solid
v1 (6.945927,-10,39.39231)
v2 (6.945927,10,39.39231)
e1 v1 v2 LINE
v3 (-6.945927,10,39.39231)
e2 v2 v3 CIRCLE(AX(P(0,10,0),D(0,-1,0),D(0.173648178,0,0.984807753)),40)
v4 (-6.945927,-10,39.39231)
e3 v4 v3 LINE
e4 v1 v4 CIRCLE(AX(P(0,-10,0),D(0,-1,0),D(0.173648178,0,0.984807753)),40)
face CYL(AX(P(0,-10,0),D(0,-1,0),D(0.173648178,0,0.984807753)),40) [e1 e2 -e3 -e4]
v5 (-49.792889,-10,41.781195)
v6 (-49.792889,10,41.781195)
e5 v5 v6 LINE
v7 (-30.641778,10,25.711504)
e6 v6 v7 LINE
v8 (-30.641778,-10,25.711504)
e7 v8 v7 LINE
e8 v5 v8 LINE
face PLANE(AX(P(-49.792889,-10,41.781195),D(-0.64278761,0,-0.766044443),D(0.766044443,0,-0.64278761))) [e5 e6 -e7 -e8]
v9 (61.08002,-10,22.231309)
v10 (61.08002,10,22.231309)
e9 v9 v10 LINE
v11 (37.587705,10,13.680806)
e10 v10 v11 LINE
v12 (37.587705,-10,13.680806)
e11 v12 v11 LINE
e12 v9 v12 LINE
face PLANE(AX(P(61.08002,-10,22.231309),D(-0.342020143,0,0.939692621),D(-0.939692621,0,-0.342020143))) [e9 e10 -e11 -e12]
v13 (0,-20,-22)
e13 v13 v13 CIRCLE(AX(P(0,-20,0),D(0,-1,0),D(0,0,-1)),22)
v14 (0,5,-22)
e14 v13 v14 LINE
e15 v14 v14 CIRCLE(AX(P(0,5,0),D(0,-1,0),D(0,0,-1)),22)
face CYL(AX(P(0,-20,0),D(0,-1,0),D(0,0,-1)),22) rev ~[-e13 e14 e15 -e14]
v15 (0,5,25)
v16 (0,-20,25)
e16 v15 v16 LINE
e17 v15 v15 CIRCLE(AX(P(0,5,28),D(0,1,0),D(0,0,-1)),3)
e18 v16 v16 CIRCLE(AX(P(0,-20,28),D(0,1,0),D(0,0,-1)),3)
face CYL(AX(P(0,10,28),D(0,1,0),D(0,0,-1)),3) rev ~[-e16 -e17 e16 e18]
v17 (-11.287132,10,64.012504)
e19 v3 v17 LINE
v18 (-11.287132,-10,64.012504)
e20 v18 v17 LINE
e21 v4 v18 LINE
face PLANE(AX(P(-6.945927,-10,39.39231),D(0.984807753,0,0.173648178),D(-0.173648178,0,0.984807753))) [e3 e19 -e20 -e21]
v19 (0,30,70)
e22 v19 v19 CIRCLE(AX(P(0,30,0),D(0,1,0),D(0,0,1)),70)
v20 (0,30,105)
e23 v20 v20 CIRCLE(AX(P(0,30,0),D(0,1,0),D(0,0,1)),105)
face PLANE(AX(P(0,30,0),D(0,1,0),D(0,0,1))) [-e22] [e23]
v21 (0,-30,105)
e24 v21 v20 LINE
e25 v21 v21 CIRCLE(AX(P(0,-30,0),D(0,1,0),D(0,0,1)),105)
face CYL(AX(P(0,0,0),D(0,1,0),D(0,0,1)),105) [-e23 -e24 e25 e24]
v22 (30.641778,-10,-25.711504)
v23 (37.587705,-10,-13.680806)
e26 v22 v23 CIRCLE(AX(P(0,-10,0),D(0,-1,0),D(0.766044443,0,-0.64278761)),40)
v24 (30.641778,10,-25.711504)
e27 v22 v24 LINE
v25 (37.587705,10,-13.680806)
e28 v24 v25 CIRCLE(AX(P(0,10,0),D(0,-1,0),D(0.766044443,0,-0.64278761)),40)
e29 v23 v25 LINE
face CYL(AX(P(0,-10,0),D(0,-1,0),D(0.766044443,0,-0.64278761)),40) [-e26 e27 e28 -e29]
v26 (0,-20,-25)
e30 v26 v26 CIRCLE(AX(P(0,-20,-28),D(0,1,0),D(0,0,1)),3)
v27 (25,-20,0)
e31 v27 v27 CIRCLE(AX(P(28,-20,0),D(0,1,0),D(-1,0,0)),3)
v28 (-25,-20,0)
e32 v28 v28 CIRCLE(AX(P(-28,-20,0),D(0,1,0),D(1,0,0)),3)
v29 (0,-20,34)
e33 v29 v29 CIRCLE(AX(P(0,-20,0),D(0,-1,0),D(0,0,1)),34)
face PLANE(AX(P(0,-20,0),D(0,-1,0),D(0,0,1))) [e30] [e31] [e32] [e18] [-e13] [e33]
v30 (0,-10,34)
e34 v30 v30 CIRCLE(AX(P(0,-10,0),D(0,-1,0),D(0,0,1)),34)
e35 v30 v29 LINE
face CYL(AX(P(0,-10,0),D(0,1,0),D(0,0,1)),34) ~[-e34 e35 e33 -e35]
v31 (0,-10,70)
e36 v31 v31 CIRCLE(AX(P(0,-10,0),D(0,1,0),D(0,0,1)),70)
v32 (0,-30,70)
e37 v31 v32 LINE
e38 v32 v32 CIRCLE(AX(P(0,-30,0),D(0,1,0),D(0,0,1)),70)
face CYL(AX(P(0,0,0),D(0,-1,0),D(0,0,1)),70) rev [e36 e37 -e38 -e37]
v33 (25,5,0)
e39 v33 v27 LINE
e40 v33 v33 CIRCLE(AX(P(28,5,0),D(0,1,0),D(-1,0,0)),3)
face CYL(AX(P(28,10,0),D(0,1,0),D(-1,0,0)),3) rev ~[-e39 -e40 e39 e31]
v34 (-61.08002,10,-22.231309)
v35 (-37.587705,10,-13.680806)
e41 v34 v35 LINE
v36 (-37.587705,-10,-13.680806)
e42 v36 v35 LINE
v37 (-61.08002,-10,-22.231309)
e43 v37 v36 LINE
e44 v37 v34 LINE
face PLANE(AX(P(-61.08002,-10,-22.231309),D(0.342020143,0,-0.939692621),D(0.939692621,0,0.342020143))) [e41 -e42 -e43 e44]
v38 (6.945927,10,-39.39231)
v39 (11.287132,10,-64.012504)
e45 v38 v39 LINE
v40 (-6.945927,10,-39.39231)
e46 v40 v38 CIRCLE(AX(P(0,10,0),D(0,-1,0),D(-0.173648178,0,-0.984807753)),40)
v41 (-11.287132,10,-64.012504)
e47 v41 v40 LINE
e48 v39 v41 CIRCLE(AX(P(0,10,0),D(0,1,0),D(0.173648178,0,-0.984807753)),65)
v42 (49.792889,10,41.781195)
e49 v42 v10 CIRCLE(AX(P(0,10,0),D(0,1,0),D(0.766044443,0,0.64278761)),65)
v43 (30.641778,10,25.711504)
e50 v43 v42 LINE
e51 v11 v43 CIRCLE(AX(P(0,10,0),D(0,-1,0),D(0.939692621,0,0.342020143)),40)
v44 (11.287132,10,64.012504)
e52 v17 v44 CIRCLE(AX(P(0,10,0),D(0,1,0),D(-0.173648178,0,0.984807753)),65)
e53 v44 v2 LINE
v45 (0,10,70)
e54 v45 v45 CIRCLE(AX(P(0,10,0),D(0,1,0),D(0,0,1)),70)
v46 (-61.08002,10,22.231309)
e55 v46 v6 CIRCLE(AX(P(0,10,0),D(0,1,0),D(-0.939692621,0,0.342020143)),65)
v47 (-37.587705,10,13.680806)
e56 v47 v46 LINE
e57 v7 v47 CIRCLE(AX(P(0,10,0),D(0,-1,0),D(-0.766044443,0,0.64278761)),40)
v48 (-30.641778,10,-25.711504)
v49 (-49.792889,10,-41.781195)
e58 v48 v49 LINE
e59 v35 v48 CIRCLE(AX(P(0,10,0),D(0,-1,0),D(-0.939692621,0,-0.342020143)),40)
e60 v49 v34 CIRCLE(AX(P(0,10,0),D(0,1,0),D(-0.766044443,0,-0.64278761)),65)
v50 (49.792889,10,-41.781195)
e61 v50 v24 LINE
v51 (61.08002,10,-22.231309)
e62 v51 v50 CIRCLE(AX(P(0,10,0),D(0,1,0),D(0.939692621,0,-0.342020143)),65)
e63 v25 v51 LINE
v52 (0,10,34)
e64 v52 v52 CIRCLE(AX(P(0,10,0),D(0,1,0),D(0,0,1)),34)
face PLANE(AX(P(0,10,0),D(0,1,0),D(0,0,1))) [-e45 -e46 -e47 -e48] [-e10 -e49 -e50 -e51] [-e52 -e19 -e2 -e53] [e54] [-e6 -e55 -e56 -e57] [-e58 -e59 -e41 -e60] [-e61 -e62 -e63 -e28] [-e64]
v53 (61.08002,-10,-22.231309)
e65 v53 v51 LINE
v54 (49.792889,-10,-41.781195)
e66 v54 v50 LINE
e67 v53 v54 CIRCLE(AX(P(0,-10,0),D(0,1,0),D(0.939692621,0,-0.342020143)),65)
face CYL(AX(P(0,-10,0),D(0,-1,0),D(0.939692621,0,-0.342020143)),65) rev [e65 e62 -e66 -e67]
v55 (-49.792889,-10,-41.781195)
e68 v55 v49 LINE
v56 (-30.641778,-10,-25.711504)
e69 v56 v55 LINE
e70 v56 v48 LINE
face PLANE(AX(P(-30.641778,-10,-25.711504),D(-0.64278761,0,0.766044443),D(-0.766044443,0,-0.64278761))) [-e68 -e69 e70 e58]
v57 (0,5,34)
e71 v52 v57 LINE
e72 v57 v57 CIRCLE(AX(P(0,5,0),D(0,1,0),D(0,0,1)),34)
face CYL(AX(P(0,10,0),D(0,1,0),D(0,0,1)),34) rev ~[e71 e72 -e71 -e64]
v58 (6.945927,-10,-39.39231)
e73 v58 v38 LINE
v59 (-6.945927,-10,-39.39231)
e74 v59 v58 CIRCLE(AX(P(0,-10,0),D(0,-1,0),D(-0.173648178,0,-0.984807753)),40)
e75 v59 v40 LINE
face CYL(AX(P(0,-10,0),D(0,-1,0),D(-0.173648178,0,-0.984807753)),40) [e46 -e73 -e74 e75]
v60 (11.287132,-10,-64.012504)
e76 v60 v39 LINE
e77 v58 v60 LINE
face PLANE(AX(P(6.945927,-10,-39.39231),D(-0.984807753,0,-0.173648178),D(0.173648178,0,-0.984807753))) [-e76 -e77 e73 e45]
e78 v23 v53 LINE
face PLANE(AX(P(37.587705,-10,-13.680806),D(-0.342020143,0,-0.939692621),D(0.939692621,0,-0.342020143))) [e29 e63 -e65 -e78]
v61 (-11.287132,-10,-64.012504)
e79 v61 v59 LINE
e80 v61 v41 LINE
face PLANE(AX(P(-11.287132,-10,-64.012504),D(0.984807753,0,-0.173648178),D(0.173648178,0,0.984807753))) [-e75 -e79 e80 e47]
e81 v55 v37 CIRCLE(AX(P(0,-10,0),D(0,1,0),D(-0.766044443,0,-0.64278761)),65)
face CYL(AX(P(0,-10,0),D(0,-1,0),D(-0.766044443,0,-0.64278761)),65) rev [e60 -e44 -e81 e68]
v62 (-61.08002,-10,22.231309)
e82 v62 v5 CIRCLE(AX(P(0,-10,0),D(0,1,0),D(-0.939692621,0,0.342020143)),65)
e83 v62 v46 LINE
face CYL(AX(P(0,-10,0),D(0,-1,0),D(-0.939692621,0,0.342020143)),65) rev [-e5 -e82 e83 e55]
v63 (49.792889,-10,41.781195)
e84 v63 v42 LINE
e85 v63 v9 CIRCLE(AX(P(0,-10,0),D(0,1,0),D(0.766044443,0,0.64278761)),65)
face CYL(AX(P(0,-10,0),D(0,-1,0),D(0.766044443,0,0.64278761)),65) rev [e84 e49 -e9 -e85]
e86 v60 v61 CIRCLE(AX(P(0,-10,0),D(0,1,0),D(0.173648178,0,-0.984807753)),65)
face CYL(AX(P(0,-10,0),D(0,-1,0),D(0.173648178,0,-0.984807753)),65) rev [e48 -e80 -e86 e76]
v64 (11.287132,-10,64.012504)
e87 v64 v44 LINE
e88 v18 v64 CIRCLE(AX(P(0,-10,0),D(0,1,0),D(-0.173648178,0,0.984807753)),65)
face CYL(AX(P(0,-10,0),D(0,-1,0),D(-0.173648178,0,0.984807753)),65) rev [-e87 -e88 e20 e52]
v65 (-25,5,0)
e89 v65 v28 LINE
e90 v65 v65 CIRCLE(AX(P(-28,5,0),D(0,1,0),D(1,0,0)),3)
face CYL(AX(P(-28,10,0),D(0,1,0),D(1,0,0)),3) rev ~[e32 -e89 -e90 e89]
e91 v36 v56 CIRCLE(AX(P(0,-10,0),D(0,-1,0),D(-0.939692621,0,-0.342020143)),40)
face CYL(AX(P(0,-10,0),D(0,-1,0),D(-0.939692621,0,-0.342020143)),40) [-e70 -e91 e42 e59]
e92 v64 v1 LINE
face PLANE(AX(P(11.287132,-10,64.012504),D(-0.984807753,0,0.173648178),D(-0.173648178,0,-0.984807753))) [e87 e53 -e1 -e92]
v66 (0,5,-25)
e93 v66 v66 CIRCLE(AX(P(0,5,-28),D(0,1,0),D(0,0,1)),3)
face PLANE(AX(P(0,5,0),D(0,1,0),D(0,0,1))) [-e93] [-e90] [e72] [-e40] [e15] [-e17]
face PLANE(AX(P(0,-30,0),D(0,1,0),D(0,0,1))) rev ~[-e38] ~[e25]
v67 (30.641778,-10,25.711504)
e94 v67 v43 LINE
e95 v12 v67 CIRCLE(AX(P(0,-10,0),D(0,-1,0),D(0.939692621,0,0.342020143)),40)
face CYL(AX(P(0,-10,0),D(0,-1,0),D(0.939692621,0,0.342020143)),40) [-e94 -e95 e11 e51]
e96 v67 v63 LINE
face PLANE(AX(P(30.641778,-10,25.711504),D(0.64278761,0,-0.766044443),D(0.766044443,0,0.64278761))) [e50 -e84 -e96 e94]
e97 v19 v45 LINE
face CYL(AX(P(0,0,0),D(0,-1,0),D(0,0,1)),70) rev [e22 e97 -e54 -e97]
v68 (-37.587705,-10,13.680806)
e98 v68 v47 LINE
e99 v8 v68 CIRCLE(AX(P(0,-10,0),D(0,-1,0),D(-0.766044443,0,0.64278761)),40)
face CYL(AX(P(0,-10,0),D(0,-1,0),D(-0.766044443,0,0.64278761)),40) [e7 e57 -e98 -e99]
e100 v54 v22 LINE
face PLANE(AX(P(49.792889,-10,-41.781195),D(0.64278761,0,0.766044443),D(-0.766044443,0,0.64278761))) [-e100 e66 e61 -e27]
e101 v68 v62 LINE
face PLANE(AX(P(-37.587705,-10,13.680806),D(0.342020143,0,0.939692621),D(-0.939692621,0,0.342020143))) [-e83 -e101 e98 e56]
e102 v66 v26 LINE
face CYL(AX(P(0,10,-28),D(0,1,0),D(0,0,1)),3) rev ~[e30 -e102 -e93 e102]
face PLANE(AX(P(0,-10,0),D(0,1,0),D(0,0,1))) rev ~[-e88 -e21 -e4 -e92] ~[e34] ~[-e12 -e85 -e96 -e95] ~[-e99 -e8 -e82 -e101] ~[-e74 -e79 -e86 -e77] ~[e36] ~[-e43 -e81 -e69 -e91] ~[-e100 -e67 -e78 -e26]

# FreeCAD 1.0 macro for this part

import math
import FreeCAD as App
import Part
import Sketcher
Q = App.Units.Quantity

doc = App.newDocument("Part")
body = doc.addObject("PartDesign::Body", "Body")

sketch1 = body.newObject("Sketcher::SketchObject", "Sketch")
sketch1.AttachmentSupport = (doc.getObject("XZ_Plane"), [""])
sketch1.MapMode = "FlatFace"
sketch1.addGeometry(Part.Circle(App.Vector(0, 0, 0), App.Vector(0, 0, 1), 70), False)
sketch1.addConstraint([
    Sketcher.Constraint("Coincident", 0, 3, -1, 1),
    Sketcher.Constraint("Diameter", 0, 140.0),
])
pad1 = body.newObject("PartDesign::Pad", "Pad")
pad1.Profile = sketch1
pad1.Length = 20
pad1.Midplane = True

sketch2 = body.newObject("Sketcher::SketchObject", "Sketch001")
sketch2.AttachmentSupport = (doc.getObject("XZ_Plane"), [""])
sketch2.MapMode = "FlatFace"
sketch2.addGeometry([
    Part.Circle(App.Vector(0, 0, 0), App.Vector(0, 0, 1), 105),
    Part.Circle(App.Vector(0, 0, 0), App.Vector(0, 0, 1), 70),
], False)
sketch2.addConstraint([
    Sketcher.Constraint("Coincident", 0, 3, -1, 1),
    Sketcher.Constraint("Coincident", 1, 3, -1, 1),
    Sketcher.Constraint("Diameter", 0, 210.0),
    Sketcher.Constraint("Diameter", 1, 140.0),
])
pad2 = body.newObject("PartDesign::Pad", "Pad001")
pad2.Profile = sketch2
pad2.Length = 60
pad2.Midplane = True

sketch3 = body.newObject("Sketcher::SketchObject", "Sketch002")
sketch3.AttachmentSupport = (doc.getObject("XZ_Plane"), [""])
sketch3.MapMode = "FlatFace"
sketch3.AttachmentOffset = App.Placement(App.Vector(0, 0, 10), App.Rotation())
sketch3.addGeometry(Part.Circle(App.Vector(0, 0, 0), App.Vector(0, 0, 1), 34), False)
sketch3.addConstraint([
    Sketcher.Constraint("Coincident", 0, 3, -1, 1),
    Sketcher.Constraint("Diameter", 0, 68.0),
])
pad3 = body.newObject("PartDesign::Pad", "Pad002")
pad3.Profile = sketch3
pad3.Length = 10

sketch4 = body.newObject("Sketcher::SketchObject", "Sketch003")
sketch4.AttachmentSupport = (doc.getObject("XZ_Plane"), [""])
sketch4.MapMode = "FlatFace"
sketch4.AttachmentOffset = App.Placement(App.Vector(0, 0, 20), App.Rotation())
sketch4.addGeometry(Part.Circle(App.Vector(0, 0, 0), App.Vector(0, 0, 1), 22), False)
sketch4.addConstraint([
    Sketcher.Constraint("Coincident", 0, 3, -1, 1),
    Sketcher.Constraint("Diameter", 0, 44.0),
])
pocket1 = body.newObject("PartDesign::Pocket", "Pocket")
pocket1.Profile = sketch4
pocket1.Length = 30

sketch5 = body.newObject("Sketcher::SketchObject", "Sketch004")
sketch5.AttachmentSupport = (doc.getObject("XZ_Plane"), [""])
sketch5.MapMode = "FlatFace"
sketch5.AttachmentOffset = App.Placement(App.Vector(0, 0, 10), App.Rotation())
sketch5.addGeometry([
    Part.LineSegment(App.Vector(-11, 64, 0), App.Vector(-7, 39, 0)),
    Part.ArcOfCircle(Part.Circle(App.Vector(0, 0, 0), App.Vector(0, 0, 1), 40), math.radians(80), math.radians(100)),
    Part.LineSegment(App.Vector(7, 39, 0), App.Vector(11, 64, 0)),
    Part.ArcOfCircle(Part.Circle(App.Vector(0, 0, 0), App.Vector(0, 0, 1), 65), math.radians(80), math.radians(100)),
], False)
sketch5.addConstraint([
    Sketcher.Constraint("Coincident", 0, 2, 1, 2),
    Sketcher.Constraint("Coincident", 1, 1, 2, 1),
    Sketcher.Constraint("Coincident", 2, 2, 3, 1),
    Sketcher.Constraint("Coincident", 3, 2, 0, 1),
    Sketcher.Constraint("Coincident", 1, 3, -1, 1),
    Sketcher.Constraint("Coincident", 3, 3, -1, 1),
    Sketcher.Constraint("Horizontal", 0, 2, 1, 1),
    Sketcher.Constraint("Horizontal", 2, 2, 3, 2),
    Sketcher.Constraint("Radius", 1, 40.0),
    Sketcher.Constraint("Radius", 3, 65.0),
    Sketcher.Constraint("Angle", 0, Q("-80 deg")),
    Sketcher.Constraint("DistanceY", -1, 1, 0, 2, 39.39231),
])
pocket2 = body.newObject("PartDesign::Pocket", "Pocket001")
pocket2.Profile = sketch5
pocket2.Length = 20
doc.recompute()

polarpattern = body.newObject("PartDesign::PolarPattern", "PolarPattern")
polarpattern.Originals = [pocket2]
polarpattern.Axis = (doc.getObject("Y_Axis"), [""])
polarpattern.Angle = 360
polarpattern.Occurrences = 6
body.Tip = polarpattern

sketch6 = body.newObject("Sketcher::SketchObject", "Sketch005")
sketch6.AttachmentSupport = (doc.getObject("XZ_Plane"), [""])
sketch6.MapMode = "FlatFace"
sketch6.AttachmentOffset = App.Placement(App.Vector(0, 0, -10), App.Rotation())
sketch6.addGeometry(Part.Circle(App.Vector(0, -28, 0), App.Vector(0, 0, 1), 3), False)
sketch6.addConstraint([
    Sketcher.Constraint("PointOnObject", 0, 3, -2),
    Sketcher.Constraint("Diameter", 0, 6.0),
    Sketcher.Constraint("DistanceY", 0, 3, -1, 1, 28.0),
])
pocket3 = body.newObject("PartDesign::Pocket", "Pocket002")
pocket3.Profile = sketch6
pocket3.Length = 30
pocket3.Reversed = True
doc.recompute()

polarpattern2 = body.newObject("PartDesign::PolarPattern", "PolarPattern001")
polarpattern2.Originals = [pocket3]
polarpattern2.Axis = (doc.getObject("Y_Axis"), [""])
polarpattern2.Angle = 360
polarpattern2.Occurrences = 4
body.Tip = polarpattern2

sketch7 = body.newObject("Sketcher::SketchObject", "Sketch006")
sketch7.AttachmentSupport = (doc.getObject("XZ_Plane"), [""])
sketch7.MapMode = "FlatFace"
sketch7.AttachmentOffset = App.Placement(App.Vector(0, 0, -10), App.Rotation())
sketch7.addGeometry(Part.Circle(App.Vector(0, 0, 0), App.Vector(0, 0, 1), 34), False)
sketch7.addConstraint([
    Sketcher.Constraint("Coincident", 0, 3, -1, 1),
    Sketcher.Constraint("Diameter", 0, 68.0),
])
pocket4 = body.newObject("PartDesign::Pocket", "Pocket003")
pocket4.Profile = sketch7
pocket4.Length = 5
pocket4.Reversed = True

doc.recompute()
